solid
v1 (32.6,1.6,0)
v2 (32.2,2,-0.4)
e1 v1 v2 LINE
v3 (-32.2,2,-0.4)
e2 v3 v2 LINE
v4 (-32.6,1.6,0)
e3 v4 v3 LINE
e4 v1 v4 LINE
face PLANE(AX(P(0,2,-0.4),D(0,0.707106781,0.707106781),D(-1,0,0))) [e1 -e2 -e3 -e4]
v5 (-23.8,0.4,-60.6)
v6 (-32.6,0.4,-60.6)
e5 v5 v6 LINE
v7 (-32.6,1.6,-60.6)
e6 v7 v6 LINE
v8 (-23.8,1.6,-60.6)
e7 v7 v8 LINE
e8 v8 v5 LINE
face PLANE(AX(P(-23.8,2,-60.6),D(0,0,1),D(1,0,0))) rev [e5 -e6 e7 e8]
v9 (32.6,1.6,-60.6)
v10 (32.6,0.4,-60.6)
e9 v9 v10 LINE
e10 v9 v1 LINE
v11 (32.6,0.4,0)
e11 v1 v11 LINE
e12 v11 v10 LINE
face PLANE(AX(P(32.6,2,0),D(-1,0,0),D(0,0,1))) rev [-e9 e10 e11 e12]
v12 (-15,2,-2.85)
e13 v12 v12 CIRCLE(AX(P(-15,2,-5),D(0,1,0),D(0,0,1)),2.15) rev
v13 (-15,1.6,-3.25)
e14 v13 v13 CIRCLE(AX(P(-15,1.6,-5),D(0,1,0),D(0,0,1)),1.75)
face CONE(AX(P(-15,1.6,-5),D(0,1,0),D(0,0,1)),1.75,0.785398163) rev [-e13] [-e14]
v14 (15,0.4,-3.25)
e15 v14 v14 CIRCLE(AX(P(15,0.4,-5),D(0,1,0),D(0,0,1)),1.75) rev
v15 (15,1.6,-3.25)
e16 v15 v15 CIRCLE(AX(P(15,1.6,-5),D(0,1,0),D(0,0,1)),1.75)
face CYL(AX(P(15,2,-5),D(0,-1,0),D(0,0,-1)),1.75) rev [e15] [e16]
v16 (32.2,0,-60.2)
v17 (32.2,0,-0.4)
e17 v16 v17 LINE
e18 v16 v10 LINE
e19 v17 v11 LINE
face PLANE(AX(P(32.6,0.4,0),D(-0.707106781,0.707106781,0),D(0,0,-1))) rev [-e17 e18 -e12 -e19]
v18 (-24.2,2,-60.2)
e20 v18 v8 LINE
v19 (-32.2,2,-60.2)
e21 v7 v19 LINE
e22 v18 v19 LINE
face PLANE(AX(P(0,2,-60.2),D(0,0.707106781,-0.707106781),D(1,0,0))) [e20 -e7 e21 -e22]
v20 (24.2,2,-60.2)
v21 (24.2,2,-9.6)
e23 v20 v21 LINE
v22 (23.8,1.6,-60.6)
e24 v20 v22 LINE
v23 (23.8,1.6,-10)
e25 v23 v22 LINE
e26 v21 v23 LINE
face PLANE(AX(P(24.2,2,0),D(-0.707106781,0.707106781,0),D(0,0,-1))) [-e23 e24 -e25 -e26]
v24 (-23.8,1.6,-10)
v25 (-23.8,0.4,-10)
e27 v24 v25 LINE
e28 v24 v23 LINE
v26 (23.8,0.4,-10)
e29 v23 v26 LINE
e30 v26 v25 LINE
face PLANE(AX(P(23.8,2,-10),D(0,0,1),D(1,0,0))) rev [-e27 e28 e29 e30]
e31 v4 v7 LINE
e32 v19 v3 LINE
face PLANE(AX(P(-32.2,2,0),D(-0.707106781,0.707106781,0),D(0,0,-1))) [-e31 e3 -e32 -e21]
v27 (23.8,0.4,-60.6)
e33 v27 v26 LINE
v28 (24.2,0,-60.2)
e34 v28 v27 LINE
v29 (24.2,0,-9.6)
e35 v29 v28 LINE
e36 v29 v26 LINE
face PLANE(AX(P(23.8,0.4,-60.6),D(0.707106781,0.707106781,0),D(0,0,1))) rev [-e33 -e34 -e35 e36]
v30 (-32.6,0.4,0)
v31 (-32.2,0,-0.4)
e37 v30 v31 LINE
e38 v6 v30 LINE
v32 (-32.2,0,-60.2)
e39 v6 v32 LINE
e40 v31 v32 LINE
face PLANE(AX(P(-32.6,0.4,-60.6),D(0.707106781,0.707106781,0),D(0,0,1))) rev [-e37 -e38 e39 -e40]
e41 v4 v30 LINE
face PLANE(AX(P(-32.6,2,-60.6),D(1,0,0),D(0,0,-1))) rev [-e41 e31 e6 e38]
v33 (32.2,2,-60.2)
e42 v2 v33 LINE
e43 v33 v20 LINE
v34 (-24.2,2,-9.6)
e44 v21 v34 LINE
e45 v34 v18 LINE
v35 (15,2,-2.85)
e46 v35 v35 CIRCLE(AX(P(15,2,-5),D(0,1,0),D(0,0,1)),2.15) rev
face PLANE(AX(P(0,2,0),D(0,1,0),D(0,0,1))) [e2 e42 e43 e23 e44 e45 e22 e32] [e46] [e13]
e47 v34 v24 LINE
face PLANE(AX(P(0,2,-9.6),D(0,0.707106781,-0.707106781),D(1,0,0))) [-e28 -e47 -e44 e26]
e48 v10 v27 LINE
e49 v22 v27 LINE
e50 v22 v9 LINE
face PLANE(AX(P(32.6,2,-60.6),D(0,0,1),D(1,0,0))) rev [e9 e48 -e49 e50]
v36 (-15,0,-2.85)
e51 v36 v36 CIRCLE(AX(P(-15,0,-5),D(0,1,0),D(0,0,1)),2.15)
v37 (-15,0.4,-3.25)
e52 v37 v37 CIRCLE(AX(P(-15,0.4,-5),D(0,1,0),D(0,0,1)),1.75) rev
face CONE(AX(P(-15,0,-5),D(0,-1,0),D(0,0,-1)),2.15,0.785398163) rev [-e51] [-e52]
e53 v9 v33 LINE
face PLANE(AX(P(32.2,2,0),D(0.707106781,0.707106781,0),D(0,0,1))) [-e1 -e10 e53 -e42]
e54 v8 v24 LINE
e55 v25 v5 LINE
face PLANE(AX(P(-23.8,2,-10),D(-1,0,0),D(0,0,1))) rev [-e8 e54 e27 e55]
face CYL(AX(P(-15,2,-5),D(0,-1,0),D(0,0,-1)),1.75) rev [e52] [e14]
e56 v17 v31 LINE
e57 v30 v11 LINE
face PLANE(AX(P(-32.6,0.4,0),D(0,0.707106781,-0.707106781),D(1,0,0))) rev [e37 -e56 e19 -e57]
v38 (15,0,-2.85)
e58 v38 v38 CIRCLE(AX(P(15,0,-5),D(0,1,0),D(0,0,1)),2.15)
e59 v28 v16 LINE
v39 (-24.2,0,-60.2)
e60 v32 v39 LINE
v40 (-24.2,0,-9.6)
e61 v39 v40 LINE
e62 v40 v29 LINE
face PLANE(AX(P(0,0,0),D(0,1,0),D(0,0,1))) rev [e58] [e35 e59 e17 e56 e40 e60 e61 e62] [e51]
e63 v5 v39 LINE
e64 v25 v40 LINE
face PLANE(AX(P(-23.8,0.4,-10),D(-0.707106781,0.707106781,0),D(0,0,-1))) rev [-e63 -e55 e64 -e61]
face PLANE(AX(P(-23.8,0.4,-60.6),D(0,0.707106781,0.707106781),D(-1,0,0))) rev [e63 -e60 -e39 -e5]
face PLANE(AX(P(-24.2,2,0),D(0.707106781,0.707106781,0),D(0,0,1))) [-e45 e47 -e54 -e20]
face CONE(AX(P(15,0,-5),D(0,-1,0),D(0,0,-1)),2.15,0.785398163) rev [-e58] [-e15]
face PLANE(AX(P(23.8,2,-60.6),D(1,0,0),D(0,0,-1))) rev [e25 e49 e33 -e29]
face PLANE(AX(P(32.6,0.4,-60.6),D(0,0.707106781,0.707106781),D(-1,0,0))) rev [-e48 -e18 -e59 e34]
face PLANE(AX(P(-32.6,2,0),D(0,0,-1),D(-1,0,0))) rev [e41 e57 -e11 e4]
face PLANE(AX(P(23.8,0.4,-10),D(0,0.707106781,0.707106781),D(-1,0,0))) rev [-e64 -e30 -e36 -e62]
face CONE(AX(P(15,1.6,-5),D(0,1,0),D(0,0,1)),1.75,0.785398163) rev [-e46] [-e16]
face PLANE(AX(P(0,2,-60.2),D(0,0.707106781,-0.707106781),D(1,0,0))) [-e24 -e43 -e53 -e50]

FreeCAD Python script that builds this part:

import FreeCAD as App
import Part
import Sketcher


def edges_at(feature, points):
    """Names of the edges that pass closest to the given points."""
    edges = feature.Shape.Edges
    near = lambda p: min(range(len(edges)), key=lambda i: edges[i].distToShape(Part.Vertex(*p))[0])
    return sorted({f"Edge{near(p) + 1}" for p in points})

doc = App.newDocument("Part")
body = doc.addObject("PartDesign::Body", "Body")

sketch1 = doc.addObject("Sketcher::SketchObject", "Sketch")
body.addObject(sketch1)
sketch1.AttachmentSupport = (doc.XZ_Plane, [""])
sketch1.MapMode = "FlatFace"
sketch1.addGeometry([
    Part.LineSegment(App.Vector(-32.6, 0, 0), App.Vector(32.6, 0, 0)),
    Part.LineSegment(App.Vector(32.6, 0, 0), App.Vector(32.6, -60.6, 0)),
    Part.LineSegment(App.Vector(32.6, -60.6, 0), App.Vector(23.8, -60.6, 0)),
    Part.LineSegment(App.Vector(23.8, -60.6, 0), App.Vector(23.8, -10, 0)),
    Part.LineSegment(App.Vector(23.8, -10, 0), App.Vector(-23.8, -10, 0)),
    Part.LineSegment(App.Vector(-23.8, -10, 0), App.Vector(-23.8, -60.6, 0)),
    Part.LineSegment(App.Vector(-23.8, -60.6, 0), App.Vector(-32.6, -60.6, 0)),
    Part.LineSegment(App.Vector(-32.6, -60.6, 0), App.Vector(-32.6, 0, 0)),
    Part.Circle(App.Vector(-15, -5, 0), App.Vector(0, 0, 1), 1.8),
    Part.Circle(App.Vector(15, -5, 0), App.Vector(0, 0, 1), 1.8),
], False)
sketch1.addConstraint([
    Sketcher.Constraint("Coincident", 0, 2, 1, 1),
    Sketcher.Constraint("Coincident", 1, 2, 2, 1),
    Sketcher.Constraint("Coincident", 2, 2, 3, 1),
    Sketcher.Constraint("Coincident", 3, 2, 4, 1),
    Sketcher.Constraint("Coincident", 4, 2, 5, 1),
    Sketcher.Constraint("Coincident", 5, 2, 6, 1),
    Sketcher.Constraint("Coincident", 6, 2, 7, 1),
    Sketcher.Constraint("Coincident", 7, 2, 0, 1),
    Sketcher.Constraint("Horizontal", 0),
    Sketcher.Constraint("Vertical", 1),
    Sketcher.Constraint("Horizontal", 2),
    Sketcher.Constraint("Vertical", 3),
    Sketcher.Constraint("Horizontal", 4),
    Sketcher.Constraint("Vertical", 5),
    Sketcher.Constraint("Horizontal", 6),
    Sketcher.Constraint("Vertical", 7),
    Sketcher.Constraint("Equal", 8, 9),
    Sketcher.Constraint("Symmetric", 0, 2, 7, 2, -1, 1),
    Sketcher.Constraint("Symmetric", 8, 3, 9, 3, -2),
    Sketcher.Constraint("Symmetric", 2, 2, 5, 2, -2),
    Sketcher.Constraint("Diameter", 8, 3.5),
    Sketcher.Constraint("DistanceX", 0, 1, 0, 2, 65.2),
    Sketcher.Constraint("DistanceX", 2, 2, 2, 1, 8.8),
    Sketcher.Constraint("DistanceY", 1, 2, 1, 1, 60.6),
    Sketcher.Constraint("DistanceY", 3, 1, 3, 2, 50.6),
    Sketcher.Constraint("DistanceX", 8, 3, -1, 1, 15.0),
    Sketcher.Constraint("DistanceY", 8, 3, -1, 1, 5.0),
])
pad1 = doc.addObject("PartDesign::Pad", "Pad")
body.addObject(pad1)
pad1.Profile = sketch1
pad1.Length = 2
pad1.Reversed = True
doc.recompute()

chamfer = doc.addObject("PartDesign::Chamfer", "Chamfer")
body.addObject(chamfer)
chamfer.Base = (pad1, edges_at(pad1, [
    (28.2, 0, -60.6),
    (32.6, 0, -30.3),
    (0, 0, 0),
    (-32.6, 0, -30.3),
    (32.6, 2, -30.3),
    (28.2, 2, -60.6),
    (23.8, 2, -35.3),
    (-15, 0, -6.75),
    (-15, 2, -6.75),
    (0, 2, -10),
    (15, 0, -6.75),
    (15, 2, -6.75),
    (-23.8, 2, -35.3),
    (-28.2, 2, -60.6),
    (-32.6, 2, -30.3),
    (-28.2, 0, -60.6),
    (0, 2, 0),
    (-23.8, 0, -35.3),
    (0, 0, -10),
    (23.8, 0, -35.3),
]))
chamfer.Size = 0.4

doc.recompute()
